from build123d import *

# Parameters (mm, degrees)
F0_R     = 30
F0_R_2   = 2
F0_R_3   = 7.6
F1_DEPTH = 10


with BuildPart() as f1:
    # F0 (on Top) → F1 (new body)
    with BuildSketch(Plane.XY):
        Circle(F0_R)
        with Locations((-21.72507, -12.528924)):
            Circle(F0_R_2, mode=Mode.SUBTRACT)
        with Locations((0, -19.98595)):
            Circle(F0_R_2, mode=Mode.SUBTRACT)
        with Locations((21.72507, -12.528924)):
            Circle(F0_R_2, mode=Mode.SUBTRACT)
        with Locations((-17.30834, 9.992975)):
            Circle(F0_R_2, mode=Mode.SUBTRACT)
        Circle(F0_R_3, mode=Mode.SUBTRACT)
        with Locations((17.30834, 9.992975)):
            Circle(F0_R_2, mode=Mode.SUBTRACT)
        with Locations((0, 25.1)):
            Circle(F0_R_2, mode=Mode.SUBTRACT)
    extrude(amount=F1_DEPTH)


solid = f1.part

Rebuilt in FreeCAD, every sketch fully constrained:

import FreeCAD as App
import Part
import Sketcher

V = App.Vector
Q = App.Units.Quantity

doc = App.newDocument("Part")
body = doc.addObject("PartDesign::Body", "Body")

sketch1 = doc.addObject("Sketcher::SketchObject", "Sketch")
body.addObject(sketch1)
sketch1.AttachmentSupport = (doc.XY_Plane, [""])
sketch1.MapMode = "FlatFace"
sketch1.addGeometry([
    Part.Circle(V(0, 0, 0), V(0, 0, 1), 30),
    Part.Circle(V(-21.7, -12.5, 0), V(0, 0, 1), 2),
    Part.Circle(V(0, -20, 0), V(0, 0, 1), 2),
    Part.Circle(V(21.7, -12.5, 0), V(0, 0, 1), 2),
    Part.Circle(V(0, 0, 0), V(0, 0, 1), 7.6),
    Part.Circle(V(-17.3, 10, 0), V(0, 0, 1), 2),
    Part.Circle(V(17.3, 10, 0), V(0, 0, 1), 2),
    Part.Circle(V(0, 25.1, 0), V(0, 0, 1), 2),
], False)
sketch1.addConstraint([
    Sketcher.Constraint("Coincident", 0, 3, -1, 1),
    Sketcher.Constraint("Coincident", 4, 3, -1, 1),
    Sketcher.Constraint("Equal", 1, 2),
    Sketcher.Constraint("Equal", 2, 3),
    Sketcher.Constraint("Equal", 3, 5),
    Sketcher.Constraint("Equal", 5, 6),
    Sketcher.Constraint("Equal", 6, 7),
    Sketcher.Constraint("Symmetric", 1, 3, 3, 3, -2),
    Sketcher.Constraint("Symmetric", 5, 3, 6, 3, -2),
    Sketcher.Constraint("PointOnObject", 2, 3, -2),
    Sketcher.Constraint("PointOnObject", 7, 3, -2),
    Sketcher.Constraint("Diameter", 0, Q("60 mm")),
    Sketcher.Constraint("Diameter", 1, Q("4 mm")),
    Sketcher.Constraint("Diameter", 4, Q("15.2 mm")),
    Sketcher.Constraint("DistanceY", -1, 1, 7, 3, Q("25.1 mm")),
    Sketcher.Constraint("DistanceY", 1, 3, 5, 3, Q("22.521899 mm")),
    Sketcher.Constraint("DistanceX", 1, 3, -1, 1, Q("21.72507 mm")),
    Sketcher.Constraint("DistanceY", 2, 3, -1, 1, Q("19.98595 mm")),
    Sketcher.Constraint("DistanceX", 5, 3, -1, 1, Q("17.30834 mm")),
    Sketcher.Constraint("DistanceY", 1, 3, -1, 1, Q("12.528924 mm")),
])
pad1 = doc.addObject("PartDesign::Pad", "Pad")
body.addObject(pad1)
pad1.Profile = sketch1
pad1.Length = 10

doc.recompute()
